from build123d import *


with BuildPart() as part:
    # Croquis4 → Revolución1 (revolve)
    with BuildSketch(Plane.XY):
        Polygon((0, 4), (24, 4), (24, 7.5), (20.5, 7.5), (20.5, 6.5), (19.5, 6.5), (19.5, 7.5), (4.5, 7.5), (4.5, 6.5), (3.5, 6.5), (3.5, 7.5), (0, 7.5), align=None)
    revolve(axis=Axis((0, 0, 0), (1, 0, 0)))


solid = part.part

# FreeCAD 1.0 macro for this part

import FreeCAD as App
import Part
import Sketcher

V = App.Vector
Q = App.Units.Quantity


def add_polygon(sketch, points):
    """Adds a closed chain of lines whose ends are joined by coincident constraints."""
    first, n = sketch.GeometryCount, len(points)
    for a, b in zip(points, points[1:] + points[:1]):
        sketch.addGeometry(Part.LineSegment(App.Vector(*a, 0), App.Vector(*b, 0)), False)
    for i in range(n):
        sketch.addConstraint(Sketcher.Constraint("Coincident", first + i, 2, first + (i + 1) % n, 1))

doc = App.newDocument("Part")
body = doc.addObject("PartDesign::Body", "Body")

# Sketch on XY plane
sketch1 = body.newObject("Sketcher::SketchObject", "Sketch")
sketch1.AttachmentSupport = (doc.getObject("XY_Plane"), [""])
sketch1.MapMode = "FlatFace"
add_polygon(sketch1, [(0, 4), (24, 4), (24, 7.5), (20.5, 7.5), (20.5, 6.5), (19.5, 6.5), (19.5, 7.5), (4.5, 7.5), (4.5, 6.5), (3.5, 6.5), (3.5, 7.5), (0, 7.5)])  # lines 0-11
sketch1.addConstraint([
    Sketcher.Constraint("Horizontal", 0),
    Sketcher.Constraint("Vertical", 1),
    Sketcher.Constraint("Horizontal", 2),
    Sketcher.Constraint("Vertical", 3),
    Sketcher.Constraint("Horizontal", 4),
    Sketcher.Constraint("Vertical", 5),
    Sketcher.Constraint("Horizontal", 6),
    Sketcher.Constraint("Vertical", 7),
    Sketcher.Constraint("Horizontal", 8),
    Sketcher.Constraint("Vertical", 9),
    Sketcher.Constraint("Horizontal", 10),
    Sketcher.Constraint("Vertical", 11),
    Sketcher.Constraint("PointOnObject", 10, 2, -2),
    Sketcher.Constraint("Horizontal", 2, 2, 5, 2),
    Sketcher.Constraint("Horizontal", 4, 2, 7, 2),
    Sketcher.Constraint("Horizontal", 6, 2, 9, 2),
    Sketcher.Constraint("Equal", 4, 8),
    Sketcher.Constraint("Equal", 2, 10),
    Sketcher.Constraint("Equal", 10, 1),
    Sketcher.Constraint("Equal", 8, 3),
    Sketcher.Constraint("DistanceX", 0, 1, 0, 2, Q("24 mm")),
    Sketcher.Constraint("DistanceX", 4, 2, 4, 1, Q("1 mm")),
    Sketcher.Constraint("DistanceX", 6, 2, 6, 1, Q("15 mm")),
    Sketcher.Constraint("DistanceY", -1, 1, 0, 2, Q("4 mm")),
])
revolution = body.newObject("PartDesign::Revolution", "Revolution")
revolution.Profile = sketch1
revolution.ReferenceAxis = (sketch1, ["H_Axis"])
revolution.Angle = 360

doc.recompute()
